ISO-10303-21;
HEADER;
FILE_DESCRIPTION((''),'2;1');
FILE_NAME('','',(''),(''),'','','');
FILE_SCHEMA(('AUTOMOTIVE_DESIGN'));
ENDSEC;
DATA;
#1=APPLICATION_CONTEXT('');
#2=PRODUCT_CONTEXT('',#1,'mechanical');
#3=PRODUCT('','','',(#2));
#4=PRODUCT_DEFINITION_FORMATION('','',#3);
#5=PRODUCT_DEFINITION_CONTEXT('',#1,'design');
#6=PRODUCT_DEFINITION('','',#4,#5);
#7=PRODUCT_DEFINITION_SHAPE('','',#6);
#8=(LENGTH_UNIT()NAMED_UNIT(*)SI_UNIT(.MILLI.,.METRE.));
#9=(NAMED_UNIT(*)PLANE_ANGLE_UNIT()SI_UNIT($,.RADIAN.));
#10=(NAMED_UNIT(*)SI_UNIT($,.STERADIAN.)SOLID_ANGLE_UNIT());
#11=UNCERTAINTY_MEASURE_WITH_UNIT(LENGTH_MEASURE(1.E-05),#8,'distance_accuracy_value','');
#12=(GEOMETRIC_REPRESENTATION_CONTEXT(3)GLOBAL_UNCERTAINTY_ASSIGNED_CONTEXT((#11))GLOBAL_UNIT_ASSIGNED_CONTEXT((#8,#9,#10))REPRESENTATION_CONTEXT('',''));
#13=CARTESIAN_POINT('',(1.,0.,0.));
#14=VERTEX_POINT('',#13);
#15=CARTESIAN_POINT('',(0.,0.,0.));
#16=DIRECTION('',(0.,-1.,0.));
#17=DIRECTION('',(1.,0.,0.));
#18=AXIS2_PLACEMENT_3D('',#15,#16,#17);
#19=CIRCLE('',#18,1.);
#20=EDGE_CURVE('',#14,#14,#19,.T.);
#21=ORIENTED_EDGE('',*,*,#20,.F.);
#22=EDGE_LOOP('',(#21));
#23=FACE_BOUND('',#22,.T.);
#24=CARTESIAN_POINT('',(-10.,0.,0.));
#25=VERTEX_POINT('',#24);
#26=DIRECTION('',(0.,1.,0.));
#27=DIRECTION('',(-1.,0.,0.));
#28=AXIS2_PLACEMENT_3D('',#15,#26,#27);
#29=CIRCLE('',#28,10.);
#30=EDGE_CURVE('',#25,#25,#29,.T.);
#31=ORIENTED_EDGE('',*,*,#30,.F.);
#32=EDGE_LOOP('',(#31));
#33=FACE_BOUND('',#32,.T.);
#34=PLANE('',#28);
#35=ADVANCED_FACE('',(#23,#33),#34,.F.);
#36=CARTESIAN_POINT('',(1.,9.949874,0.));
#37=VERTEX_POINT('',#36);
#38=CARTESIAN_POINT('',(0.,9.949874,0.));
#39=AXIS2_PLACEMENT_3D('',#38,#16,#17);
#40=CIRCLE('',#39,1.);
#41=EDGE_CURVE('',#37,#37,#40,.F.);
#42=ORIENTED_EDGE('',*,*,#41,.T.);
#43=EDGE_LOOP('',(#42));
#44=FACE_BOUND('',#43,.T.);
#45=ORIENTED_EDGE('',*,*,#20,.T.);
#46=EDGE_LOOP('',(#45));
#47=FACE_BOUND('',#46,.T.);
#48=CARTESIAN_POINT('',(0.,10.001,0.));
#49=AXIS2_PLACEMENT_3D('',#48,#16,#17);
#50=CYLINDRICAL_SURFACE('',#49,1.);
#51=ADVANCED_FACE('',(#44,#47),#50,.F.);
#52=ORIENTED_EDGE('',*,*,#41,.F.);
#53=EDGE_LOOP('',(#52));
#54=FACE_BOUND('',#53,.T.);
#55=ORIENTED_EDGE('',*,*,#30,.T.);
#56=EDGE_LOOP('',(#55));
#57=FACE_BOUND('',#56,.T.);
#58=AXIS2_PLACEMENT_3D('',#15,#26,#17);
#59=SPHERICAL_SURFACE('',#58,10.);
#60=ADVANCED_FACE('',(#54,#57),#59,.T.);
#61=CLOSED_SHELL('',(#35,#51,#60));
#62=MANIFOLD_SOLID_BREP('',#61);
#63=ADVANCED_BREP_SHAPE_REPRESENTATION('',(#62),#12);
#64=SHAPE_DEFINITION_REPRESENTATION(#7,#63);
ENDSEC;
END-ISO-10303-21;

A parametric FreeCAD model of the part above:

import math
import FreeCAD as App
import Part
import Sketcher
from FreeCAD import Vector
Q = App.Units.Quantity

doc = App.newDocument("Part")
params = doc.addObject("Spreadsheet::Sheet", "Params")
for row, (alias, value) in enumerate([
    ("sketch1_radius", "10 mm"),
    ("revolution_angle", "360 deg"),
    ("sketch2_diameter", "2 mm"),
], start=1):
    params.set(f"A{row}", alias)
    params.set(f"B{row}", "=" + value)
    params.setAlias(f"B{row}", alias)

body = doc.addObject("PartDesign::Body", "Body")

# Sketch on XY plane
sketch1 = body.newObject("Sketcher::SketchObject", "Sketch")
sketch1.AttachmentSupport = (doc.getObject("XY_Plane"), [""])
sketch1.MapMode = "FlatFace"
sketch1.addGeometry([
    Part.LineSegment(Vector(0, 0, 0), Vector(10, 0, 0)),
    Part.ArcOfCircle(Part.Circle(Vector(0, 0, 0), Vector(0, 0, 1), 10), math.radians(0), math.radians(90)),
    Part.LineSegment(Vector(0, 10, 0), Vector(0, 0, 0)),
], False)
sketch1.addConstraint([
    Sketcher.Constraint("Coincident", 0, 2, 1, 1),
    Sketcher.Constraint("Coincident", 1, 2, 2, 1),
    Sketcher.Constraint("Coincident", 2, 2, 0, 1),
    Sketcher.Constraint("Horizontal", 0),
    Sketcher.Constraint("Vertical", 2),
    Sketcher.Constraint("Coincident", 1, 3, -1, 1),
    Sketcher.Constraint("Coincident", 2, 2, -1, 1),
    Sketcher.Constraint("Radius", 1, Q("10 mm")),
])
sketch1.setExpression("Constraints[7]", "Params.sketch1_radius")
revolution = body.newObject("PartDesign::Revolution", "Revolution")
revolution.Profile = sketch1
revolution.ReferenceAxis = (sketch1, ["V_Axis"])
revolution.setExpression("Angle", "Params.revolution_angle")

# Sketch on XZ plane
sketch2 = body.newObject("Sketcher::SketchObject", "Sketch001")
sketch2.AttachmentSupport = (doc.getObject("XZ_Plane"), [""])
sketch2.MapMode = "FlatFace"
sketch2.addGeometry(Part.Circle(Vector(0, 0, 0), Vector(0, 0, 1), 1), False)
sketch2.addConstraint([
    Sketcher.Constraint("Coincident", 0, 3, -1, 1),
    Sketcher.Constraint("Diameter", 0, Q("2 mm")),
])
sketch2.setExpression("Constraints[1]", "Params.sketch2_diameter")
pocket1 = body.newObject("PartDesign::Pocket", "Pocket")
pocket1.Profile = sketch2
pocket1.Type = "UpToFirst"

doc.recompute()
